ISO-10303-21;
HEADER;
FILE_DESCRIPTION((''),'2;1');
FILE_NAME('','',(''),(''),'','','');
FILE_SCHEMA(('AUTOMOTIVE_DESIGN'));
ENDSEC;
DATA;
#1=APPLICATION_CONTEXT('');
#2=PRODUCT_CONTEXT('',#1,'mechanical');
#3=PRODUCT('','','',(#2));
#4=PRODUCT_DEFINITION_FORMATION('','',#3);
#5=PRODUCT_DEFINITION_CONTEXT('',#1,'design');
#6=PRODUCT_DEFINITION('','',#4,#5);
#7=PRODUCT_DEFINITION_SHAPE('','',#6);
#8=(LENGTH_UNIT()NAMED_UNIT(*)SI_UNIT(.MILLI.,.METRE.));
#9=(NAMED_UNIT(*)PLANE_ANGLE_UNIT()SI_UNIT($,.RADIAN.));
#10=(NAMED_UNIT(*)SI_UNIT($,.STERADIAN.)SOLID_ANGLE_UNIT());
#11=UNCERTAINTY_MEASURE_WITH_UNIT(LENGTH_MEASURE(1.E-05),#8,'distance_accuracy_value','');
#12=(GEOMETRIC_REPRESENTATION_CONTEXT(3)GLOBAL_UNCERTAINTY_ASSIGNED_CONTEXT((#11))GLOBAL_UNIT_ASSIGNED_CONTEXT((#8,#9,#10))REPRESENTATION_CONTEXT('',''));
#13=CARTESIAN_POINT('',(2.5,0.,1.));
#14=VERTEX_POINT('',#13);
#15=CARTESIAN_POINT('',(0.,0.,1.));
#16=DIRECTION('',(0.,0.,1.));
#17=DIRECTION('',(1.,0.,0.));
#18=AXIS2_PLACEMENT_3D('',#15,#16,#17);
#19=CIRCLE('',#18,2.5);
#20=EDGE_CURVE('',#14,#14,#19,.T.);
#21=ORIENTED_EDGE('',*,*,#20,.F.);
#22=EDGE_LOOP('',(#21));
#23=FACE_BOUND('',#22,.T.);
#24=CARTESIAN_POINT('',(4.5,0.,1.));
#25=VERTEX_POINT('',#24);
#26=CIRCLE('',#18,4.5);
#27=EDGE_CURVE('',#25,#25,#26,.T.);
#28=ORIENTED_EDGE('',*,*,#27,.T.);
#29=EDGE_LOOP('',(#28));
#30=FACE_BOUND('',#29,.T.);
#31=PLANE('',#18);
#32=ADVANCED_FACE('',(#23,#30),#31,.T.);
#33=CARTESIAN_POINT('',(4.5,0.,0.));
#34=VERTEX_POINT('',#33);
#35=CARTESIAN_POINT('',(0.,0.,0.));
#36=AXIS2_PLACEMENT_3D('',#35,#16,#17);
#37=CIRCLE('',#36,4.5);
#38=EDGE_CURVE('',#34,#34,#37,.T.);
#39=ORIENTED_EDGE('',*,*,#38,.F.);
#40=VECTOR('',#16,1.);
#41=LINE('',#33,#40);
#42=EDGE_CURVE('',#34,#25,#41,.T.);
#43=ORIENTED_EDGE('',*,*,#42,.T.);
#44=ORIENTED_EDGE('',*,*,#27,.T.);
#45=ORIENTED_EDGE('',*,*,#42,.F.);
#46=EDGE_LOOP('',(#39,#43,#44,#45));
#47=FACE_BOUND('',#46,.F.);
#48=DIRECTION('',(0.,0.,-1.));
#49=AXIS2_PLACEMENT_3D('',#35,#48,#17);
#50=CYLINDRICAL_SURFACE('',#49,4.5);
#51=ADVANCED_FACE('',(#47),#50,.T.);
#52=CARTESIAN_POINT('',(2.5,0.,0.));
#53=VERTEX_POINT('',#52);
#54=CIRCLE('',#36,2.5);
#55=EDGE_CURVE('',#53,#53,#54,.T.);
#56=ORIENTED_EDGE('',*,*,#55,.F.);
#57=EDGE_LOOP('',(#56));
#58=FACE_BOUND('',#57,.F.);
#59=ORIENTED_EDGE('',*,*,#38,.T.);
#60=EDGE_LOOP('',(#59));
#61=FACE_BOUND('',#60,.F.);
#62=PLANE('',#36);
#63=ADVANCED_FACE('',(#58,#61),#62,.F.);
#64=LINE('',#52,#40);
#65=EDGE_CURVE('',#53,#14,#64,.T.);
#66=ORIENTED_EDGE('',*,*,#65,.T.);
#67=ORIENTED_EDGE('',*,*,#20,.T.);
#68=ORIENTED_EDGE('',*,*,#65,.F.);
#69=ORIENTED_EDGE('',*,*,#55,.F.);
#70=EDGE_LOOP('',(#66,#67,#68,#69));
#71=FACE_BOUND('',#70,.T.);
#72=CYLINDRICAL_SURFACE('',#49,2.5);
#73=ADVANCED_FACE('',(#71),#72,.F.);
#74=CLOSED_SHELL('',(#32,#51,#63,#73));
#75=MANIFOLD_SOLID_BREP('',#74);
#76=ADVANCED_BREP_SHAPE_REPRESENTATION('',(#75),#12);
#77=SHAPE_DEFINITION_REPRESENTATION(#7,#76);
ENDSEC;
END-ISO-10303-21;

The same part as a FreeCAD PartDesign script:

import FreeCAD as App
import Part
import Sketcher
from FreeCAD import Vector

doc = App.newDocument("Part")
body = doc.addObject("PartDesign::Body", "Body")

sketch1 = body.newObject("Sketcher::SketchObject", "Sketch")
sketch1.AttachmentSupport = (doc.getObject("XY_Plane"), [""])
sketch1.MapMode = "FlatFace"
sketch1.addGeometry([
    Part.Circle(Vector(0, 0, 0), Vector(0, 0, 1), 4.5),
    Part.Circle(Vector(0, 0, 0), Vector(0, 0, 1), 2.5),
], False)
sketch1.addConstraint([
    Sketcher.Constraint("Coincident", 0, 3, -1, 1),
    Sketcher.Constraint("Coincident", 1, 3, -1, 1),
    Sketcher.Constraint("Diameter", 0, 9.0),
    Sketcher.Constraint("Diameter", 1, 5.0),
])
pad1 = body.newObject("PartDesign::Pad", "Pad")
pad1.Profile = sketch1
pad1.Length = 1

doc.recompute()
